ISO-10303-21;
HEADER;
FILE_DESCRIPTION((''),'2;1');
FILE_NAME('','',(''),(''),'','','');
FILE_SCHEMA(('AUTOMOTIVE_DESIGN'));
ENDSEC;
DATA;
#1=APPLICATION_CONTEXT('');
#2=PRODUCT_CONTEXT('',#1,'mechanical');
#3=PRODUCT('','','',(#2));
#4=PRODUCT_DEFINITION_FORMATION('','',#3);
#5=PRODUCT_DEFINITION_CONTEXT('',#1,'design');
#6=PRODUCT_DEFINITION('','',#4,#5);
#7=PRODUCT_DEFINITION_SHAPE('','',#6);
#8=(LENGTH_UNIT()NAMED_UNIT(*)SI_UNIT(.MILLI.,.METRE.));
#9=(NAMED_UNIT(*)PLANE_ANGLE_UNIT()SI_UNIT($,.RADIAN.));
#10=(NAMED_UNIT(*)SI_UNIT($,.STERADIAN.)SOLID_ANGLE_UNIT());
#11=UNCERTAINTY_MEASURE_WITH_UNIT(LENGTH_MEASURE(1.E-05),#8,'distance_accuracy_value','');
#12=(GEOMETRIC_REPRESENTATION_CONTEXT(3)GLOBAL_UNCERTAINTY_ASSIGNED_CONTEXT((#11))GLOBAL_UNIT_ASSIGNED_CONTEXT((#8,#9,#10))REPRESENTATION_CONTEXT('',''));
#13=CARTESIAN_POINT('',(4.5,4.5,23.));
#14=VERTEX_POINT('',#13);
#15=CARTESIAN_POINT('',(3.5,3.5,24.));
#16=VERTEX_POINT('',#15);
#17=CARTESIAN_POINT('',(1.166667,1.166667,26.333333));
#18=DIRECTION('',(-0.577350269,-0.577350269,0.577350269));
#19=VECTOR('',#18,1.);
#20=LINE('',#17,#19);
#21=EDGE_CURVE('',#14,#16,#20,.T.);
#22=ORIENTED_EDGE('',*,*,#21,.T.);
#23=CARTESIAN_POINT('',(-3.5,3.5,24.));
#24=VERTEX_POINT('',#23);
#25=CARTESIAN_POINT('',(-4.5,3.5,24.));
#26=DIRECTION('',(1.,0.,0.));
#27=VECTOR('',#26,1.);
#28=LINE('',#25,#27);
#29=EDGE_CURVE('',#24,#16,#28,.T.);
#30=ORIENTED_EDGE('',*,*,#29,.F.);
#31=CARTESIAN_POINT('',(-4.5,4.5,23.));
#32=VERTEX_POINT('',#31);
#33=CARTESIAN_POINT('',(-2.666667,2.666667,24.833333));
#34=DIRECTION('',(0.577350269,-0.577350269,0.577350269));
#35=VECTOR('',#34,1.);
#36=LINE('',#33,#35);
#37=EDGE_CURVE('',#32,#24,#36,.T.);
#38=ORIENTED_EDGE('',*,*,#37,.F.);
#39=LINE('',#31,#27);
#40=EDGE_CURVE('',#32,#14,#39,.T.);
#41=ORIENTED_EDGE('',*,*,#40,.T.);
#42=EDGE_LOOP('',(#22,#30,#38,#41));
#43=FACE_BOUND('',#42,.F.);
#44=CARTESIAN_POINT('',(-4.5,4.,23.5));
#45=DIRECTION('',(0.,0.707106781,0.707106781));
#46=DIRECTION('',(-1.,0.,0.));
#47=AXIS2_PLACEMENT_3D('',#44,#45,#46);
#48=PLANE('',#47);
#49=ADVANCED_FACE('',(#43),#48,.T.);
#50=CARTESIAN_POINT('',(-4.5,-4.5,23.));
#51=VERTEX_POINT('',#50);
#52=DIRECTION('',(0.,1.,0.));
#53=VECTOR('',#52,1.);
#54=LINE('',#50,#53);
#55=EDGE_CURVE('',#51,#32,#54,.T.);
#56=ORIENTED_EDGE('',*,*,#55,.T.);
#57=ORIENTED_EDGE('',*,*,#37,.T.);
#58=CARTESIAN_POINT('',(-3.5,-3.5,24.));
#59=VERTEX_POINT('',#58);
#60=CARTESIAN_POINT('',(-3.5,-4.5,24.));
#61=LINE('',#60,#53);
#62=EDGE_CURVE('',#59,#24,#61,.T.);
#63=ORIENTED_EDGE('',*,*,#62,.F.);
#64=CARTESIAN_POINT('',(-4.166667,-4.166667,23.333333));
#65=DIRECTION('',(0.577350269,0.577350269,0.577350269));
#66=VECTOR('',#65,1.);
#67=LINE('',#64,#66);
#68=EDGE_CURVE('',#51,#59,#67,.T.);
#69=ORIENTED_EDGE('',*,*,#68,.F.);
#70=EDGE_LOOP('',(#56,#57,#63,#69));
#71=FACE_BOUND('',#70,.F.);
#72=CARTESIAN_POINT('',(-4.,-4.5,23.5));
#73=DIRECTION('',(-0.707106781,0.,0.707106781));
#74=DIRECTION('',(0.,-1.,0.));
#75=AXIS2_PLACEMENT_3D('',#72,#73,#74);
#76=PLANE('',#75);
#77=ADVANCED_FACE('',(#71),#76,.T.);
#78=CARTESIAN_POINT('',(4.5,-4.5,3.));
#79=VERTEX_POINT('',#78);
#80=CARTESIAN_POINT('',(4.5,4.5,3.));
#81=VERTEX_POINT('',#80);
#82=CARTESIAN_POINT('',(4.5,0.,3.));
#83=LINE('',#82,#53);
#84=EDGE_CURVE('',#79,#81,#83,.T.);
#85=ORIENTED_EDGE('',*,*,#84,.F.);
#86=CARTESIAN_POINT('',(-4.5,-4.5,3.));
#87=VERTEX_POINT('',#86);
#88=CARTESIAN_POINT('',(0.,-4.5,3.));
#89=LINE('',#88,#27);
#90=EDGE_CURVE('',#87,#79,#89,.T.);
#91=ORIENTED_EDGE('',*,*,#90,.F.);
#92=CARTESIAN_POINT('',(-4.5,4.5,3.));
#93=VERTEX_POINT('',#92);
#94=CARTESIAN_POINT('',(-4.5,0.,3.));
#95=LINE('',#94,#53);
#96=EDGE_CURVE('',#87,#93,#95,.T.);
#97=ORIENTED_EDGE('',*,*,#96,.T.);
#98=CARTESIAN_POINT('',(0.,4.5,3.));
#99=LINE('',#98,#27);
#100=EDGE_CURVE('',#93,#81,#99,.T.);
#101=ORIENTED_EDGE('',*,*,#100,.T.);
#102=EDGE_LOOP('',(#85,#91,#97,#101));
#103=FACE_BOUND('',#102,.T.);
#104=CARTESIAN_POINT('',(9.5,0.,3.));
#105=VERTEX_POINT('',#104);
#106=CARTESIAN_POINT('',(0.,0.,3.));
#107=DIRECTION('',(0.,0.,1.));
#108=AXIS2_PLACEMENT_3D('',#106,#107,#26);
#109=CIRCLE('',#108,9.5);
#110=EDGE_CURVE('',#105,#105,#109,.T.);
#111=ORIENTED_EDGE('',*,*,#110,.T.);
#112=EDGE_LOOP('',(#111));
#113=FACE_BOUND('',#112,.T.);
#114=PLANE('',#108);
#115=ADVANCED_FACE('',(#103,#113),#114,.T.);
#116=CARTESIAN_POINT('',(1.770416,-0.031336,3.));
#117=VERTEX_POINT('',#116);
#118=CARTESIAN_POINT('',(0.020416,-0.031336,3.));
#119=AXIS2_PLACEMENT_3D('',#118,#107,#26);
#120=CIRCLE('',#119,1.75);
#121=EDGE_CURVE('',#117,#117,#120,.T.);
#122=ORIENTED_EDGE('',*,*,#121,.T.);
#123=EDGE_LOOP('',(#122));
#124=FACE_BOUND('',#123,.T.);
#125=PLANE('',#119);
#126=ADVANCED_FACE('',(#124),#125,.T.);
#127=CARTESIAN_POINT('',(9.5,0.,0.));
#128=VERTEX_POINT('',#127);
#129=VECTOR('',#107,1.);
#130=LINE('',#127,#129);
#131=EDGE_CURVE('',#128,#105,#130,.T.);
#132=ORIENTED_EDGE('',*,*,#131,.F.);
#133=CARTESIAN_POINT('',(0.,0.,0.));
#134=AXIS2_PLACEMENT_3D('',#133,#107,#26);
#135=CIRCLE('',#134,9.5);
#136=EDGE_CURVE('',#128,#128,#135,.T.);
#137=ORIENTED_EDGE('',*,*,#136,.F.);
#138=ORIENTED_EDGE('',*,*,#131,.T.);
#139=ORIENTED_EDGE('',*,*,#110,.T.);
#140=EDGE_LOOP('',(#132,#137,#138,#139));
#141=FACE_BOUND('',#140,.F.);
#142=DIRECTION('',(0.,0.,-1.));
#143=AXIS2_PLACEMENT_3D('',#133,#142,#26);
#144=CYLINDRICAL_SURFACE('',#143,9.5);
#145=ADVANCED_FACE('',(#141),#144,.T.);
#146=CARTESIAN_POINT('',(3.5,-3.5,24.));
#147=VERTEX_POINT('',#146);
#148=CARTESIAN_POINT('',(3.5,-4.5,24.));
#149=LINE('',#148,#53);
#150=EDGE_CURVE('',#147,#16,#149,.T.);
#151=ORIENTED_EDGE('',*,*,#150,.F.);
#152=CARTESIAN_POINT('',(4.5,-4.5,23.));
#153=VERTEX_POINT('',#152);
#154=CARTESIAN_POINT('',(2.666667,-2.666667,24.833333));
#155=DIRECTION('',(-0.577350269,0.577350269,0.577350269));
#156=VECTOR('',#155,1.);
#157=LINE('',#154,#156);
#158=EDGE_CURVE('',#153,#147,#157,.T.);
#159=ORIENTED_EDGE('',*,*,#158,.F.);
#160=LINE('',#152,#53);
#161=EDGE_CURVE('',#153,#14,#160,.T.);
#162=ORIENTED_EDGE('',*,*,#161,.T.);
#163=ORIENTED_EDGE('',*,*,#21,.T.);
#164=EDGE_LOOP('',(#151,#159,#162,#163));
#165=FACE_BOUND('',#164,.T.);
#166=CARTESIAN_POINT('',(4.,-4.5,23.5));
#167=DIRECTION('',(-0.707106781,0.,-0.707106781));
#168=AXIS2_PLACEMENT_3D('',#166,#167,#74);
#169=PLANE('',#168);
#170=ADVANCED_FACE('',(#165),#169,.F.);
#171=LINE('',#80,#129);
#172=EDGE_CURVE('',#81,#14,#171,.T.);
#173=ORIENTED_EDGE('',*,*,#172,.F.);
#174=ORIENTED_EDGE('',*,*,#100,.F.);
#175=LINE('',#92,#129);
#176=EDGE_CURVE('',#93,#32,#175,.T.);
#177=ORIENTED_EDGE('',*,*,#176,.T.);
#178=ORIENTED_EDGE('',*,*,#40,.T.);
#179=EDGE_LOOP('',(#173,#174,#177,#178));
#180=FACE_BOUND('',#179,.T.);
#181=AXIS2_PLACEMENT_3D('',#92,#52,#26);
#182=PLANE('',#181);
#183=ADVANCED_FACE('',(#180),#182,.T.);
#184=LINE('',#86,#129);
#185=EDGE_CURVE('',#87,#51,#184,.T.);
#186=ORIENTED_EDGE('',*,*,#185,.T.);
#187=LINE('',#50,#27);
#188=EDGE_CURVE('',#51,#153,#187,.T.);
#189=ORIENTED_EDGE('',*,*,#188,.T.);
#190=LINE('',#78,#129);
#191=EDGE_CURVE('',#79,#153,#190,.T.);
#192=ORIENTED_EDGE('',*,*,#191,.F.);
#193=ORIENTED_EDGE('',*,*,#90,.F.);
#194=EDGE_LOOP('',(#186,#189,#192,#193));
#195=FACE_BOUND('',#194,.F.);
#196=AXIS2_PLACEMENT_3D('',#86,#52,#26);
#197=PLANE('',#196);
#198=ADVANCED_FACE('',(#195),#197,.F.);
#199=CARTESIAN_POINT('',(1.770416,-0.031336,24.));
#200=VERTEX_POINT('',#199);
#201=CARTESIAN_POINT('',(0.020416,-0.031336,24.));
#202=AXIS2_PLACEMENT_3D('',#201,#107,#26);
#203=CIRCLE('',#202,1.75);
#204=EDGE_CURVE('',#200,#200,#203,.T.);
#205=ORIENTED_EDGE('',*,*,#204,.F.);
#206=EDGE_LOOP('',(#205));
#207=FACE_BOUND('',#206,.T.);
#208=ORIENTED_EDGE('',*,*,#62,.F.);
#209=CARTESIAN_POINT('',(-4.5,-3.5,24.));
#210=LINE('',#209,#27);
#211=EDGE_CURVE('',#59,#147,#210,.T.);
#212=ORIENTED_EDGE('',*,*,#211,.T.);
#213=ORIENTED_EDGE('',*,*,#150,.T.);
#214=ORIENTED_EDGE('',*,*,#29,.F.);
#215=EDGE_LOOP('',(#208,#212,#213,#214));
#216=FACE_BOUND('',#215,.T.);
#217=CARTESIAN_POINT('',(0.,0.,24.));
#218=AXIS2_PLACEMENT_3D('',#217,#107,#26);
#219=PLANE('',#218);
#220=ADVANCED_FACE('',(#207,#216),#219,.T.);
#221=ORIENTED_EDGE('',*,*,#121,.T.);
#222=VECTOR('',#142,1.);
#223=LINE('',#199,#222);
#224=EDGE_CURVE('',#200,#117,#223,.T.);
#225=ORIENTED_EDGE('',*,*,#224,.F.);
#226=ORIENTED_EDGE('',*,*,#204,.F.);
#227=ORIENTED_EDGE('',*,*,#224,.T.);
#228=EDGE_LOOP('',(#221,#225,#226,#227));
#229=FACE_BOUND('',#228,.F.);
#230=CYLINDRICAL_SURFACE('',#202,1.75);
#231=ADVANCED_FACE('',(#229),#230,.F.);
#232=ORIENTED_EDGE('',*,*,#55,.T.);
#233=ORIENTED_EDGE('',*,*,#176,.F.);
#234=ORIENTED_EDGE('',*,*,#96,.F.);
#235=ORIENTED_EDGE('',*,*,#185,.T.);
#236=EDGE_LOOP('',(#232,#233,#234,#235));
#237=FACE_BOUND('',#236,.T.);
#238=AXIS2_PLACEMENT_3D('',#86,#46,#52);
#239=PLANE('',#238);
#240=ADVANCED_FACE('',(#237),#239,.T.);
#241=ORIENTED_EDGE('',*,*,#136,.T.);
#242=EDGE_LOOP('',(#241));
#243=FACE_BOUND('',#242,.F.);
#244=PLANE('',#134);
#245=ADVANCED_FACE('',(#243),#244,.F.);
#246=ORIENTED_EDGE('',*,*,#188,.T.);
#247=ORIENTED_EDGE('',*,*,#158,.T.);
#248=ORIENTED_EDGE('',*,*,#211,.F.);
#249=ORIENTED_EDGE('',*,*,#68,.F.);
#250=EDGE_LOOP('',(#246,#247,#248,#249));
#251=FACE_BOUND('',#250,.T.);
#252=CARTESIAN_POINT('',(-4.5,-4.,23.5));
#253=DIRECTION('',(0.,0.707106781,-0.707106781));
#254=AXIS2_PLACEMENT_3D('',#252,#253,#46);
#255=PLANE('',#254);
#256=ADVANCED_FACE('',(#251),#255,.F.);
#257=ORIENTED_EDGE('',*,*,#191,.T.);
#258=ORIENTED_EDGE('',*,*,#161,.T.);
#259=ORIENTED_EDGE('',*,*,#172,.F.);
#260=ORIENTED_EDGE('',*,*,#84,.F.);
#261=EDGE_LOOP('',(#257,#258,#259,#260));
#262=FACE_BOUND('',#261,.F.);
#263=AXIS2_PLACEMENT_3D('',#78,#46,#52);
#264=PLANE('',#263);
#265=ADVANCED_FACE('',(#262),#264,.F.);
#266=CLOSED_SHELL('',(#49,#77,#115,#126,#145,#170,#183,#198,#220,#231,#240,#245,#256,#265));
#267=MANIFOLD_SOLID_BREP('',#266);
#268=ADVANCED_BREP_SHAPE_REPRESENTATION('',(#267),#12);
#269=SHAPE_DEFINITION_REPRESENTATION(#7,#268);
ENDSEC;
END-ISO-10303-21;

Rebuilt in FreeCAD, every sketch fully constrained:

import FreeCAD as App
import Part
import Sketcher
from FreeCAD import Vector
Q = App.Units.Quantity


def edges_at(feature, points):
    """Names of the edges that pass closest to the given points."""
    edges = feature.Shape.Edges
    near = lambda p: min(range(len(edges)), key=lambda i: edges[i].distToShape(Part.Vertex(*p))[0])
    return sorted({f"Edge{near(p) + 1}" for p in points})


def add_polygon(sketch, points):
    """Adds a closed chain of lines whose ends are joined by coincident constraints."""
    first, n = sketch.GeometryCount, len(points)
    for a, b in zip(points, points[1:] + points[:1]):
        sketch.addGeometry(Part.LineSegment(App.Vector(*a, 0), App.Vector(*b, 0)), False)
    for i in range(n):
        sketch.addConstraint(Sketcher.Constraint("Coincident", first + i, 2, first + (i + 1) % n, 1))

doc = App.newDocument("Part")
body = doc.addObject("PartDesign::Body", "Body")

# Sketch on XY plane
sketch1 = body.newObject("Sketcher::SketchObject", "Sketch")
sketch1.AttachmentSupport = (doc.getObject("XY_Plane"), [""])
sketch1.MapMode = "FlatFace"
sketch1.addGeometry(Part.Circle(Vector(0, 0, 0), Vector(0, 0, 1), 10), False)
sketch1.addConstraint([
    Sketcher.Constraint("Coincident", 0, 3, -1, 1),
    Sketcher.Constraint("Diameter", 0, Q("19 mm")),
])
pad1 = body.newObject("PartDesign::Pad", "Pad")
pad1.Profile = sketch1
pad1.Length = 3

# Sketch on XY plane
sketch2 = body.newObject("Sketcher::SketchObject", "Sketch001")
sketch2.AttachmentSupport = (doc.getObject("XY_Plane"), [""])
sketch2.MapMode = "FlatFace"
sketch2.AttachmentOffset = App.Placement(Vector(0, 0, 3), App.Rotation())
add_polygon(sketch2, [(-4, 4), (-4, -4), (4, -4), (4, 4)])  # lines 0-3
sketch2.addConstraint([
    Sketcher.Constraint("Vertical", 0),
    Sketcher.Constraint("Horizontal", 1),
    Sketcher.Constraint("Vertical", 2),
    Sketcher.Constraint("Horizontal", 3),
    Sketcher.Constraint("Symmetric", 0, 2, 2, 2, -1, 1),
    Sketcher.Constraint("Equal", 3, 0),
    Sketcher.Constraint("DistanceX", 1, 1, 1, 2, Q("9 mm")),
])
pad2 = body.newObject("PartDesign::Pad", "Pad001")
pad2.Profile = sketch2
pad2.Length = 21
doc.recompute()

chamfer = body.newObject("PartDesign::Chamfer", "Chamfer")
chamfer.Base = (pad2, edges_at(pad2, [
    (0, 4.5, 24),
    (-4.5, 0, 24),
    (0, -4.5, 24),
    (4.5, 0, 24),
]))
chamfer.Size = 1

# Sketch on XY plane
sketch3 = body.newObject("Sketcher::SketchObject", "Sketch002")
sketch3.AttachmentSupport = (doc.getObject("XY_Plane"), [""])
sketch3.MapMode = "FlatFace"
sketch3.AttachmentOffset = App.Placement(Vector(0, 0, 24), App.Rotation())
sketch3.addGeometry(Part.Circle(Vector(0, 0, 0), Vector(0, 0, 1), 1.8), False)
sketch3.addConstraint([
    Sketcher.Constraint("Diameter", 0, Q("3.5 mm")),
    Sketcher.Constraint("DistanceX", -1, 1, 0, 3, Q("0.020416 mm")),
    Sketcher.Constraint("DistanceY", 0, 3, -1, 1, Q("0.031336 mm")),
])
pocket1 = body.newObject("PartDesign::Pocket", "Pocket")
pocket1.Profile = sketch3
pocket1.Length = 21

doc.recompute()
